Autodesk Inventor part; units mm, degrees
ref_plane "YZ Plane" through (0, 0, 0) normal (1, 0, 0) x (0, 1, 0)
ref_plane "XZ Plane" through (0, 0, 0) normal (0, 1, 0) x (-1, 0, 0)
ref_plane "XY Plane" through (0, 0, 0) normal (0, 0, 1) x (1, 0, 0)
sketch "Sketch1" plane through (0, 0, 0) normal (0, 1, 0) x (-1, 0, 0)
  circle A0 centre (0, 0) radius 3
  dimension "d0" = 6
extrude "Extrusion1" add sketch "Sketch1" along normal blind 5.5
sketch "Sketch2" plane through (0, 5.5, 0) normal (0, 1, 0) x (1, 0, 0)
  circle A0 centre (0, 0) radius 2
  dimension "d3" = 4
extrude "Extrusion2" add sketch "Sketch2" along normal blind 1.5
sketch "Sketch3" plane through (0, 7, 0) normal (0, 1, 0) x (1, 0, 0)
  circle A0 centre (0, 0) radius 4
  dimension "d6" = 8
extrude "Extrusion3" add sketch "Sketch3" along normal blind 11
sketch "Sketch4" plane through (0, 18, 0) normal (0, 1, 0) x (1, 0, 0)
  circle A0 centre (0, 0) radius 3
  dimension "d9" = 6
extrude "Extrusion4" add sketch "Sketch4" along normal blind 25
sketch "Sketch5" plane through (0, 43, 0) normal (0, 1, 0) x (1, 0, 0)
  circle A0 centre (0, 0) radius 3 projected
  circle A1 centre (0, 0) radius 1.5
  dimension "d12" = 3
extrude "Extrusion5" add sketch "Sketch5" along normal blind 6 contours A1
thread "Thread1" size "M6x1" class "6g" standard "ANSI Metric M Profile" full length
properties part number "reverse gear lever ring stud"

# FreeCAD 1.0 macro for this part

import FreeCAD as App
import Part
import Sketcher
from FreeCAD import Vector

doc = App.newDocument("Part")
body = doc.addObject("PartDesign::Body", "Body")

# Sketch on XZ plane
sketch1 = body.newObject("Sketcher::SketchObject", "Sketch")
sketch1.AttachmentSupport = (doc.getObject("XZ_Plane"), [""])
sketch1.MapMode = "FlatFace"
sketch1.addGeometry(Part.Circle(Vector(0, 0, 0), Vector(0, 0, 1), 3), False)
sketch1.addConstraint([
    Sketcher.Constraint("Coincident", 0, 3, -1, 1),
    Sketcher.Constraint("Diameter", 0, 6.0),
])
pad1 = body.newObject("PartDesign::Pad", "Pad")
pad1.Profile = sketch1
pad1.Length = 5.5
pad1.Reversed = True

# Sketch on XZ plane
sketch2 = body.newObject("Sketcher::SketchObject", "Sketch001")
sketch2.AttachmentSupport = (doc.getObject("XZ_Plane"), [""])
sketch2.MapMode = "FlatFace"
sketch2.AttachmentOffset = App.Placement(Vector(0, 0, -5.5), App.Rotation())
sketch2.addGeometry(Part.Circle(Vector(0, 0, 0), Vector(0, 0, 1), 2), False)
sketch2.addConstraint([
    Sketcher.Constraint("Coincident", 0, 3, -1, 1),
    Sketcher.Constraint("Diameter", 0, 4.0),
])
pad2 = body.newObject("PartDesign::Pad", "Pad001")
pad2.Profile = sketch2
pad2.Length = 1.5
pad2.Reversed = True

# Sketch on XZ plane
sketch3 = body.newObject("Sketcher::SketchObject", "Sketch002")
sketch3.AttachmentSupport = (doc.getObject("XZ_Plane"), [""])
sketch3.MapMode = "FlatFace"
sketch3.AttachmentOffset = App.Placement(Vector(0, 0, -7), App.Rotation())
sketch3.addGeometry(Part.Circle(Vector(0, 0, 0), Vector(0, 0, 1), 4), False)
sketch3.addConstraint([
    Sketcher.Constraint("Coincident", 0, 3, -1, 1),
    Sketcher.Constraint("Diameter", 0, 8.0),
])
pad3 = body.newObject("PartDesign::Pad", "Pad002")
pad3.Profile = sketch3
pad3.Length = 11
pad3.Reversed = True

# Sketch on XZ plane
sketch4 = body.newObject("Sketcher::SketchObject", "Sketch003")
sketch4.AttachmentSupport = (doc.getObject("XZ_Plane"), [""])
sketch4.MapMode = "FlatFace"
sketch4.AttachmentOffset = App.Placement(Vector(0, 0, -18), App.Rotation())
sketch4.addGeometry(Part.Circle(Vector(0, 0, 0), Vector(0, 0, 1), 3), False)
sketch4.addConstraint([
    Sketcher.Constraint("Coincident", 0, 3, -1, 1),
    Sketcher.Constraint("Diameter", 0, 6.0),
])
pad4 = body.newObject("PartDesign::Pad", "Pad003")
pad4.Profile = sketch4
pad4.Length = 25
pad4.Reversed = True

# Sketch on XZ plane
sketch5 = body.newObject("Sketcher::SketchObject", "Sketch004")
sketch5.AttachmentSupport = (doc.getObject("XZ_Plane"), [""])
sketch5.MapMode = "FlatFace"
sketch5.AttachmentOffset = App.Placement(Vector(0, 0, -43), App.Rotation())
sketch5.addGeometry(Part.Circle(Vector(0, 0, 0), Vector(0, 0, 1), 1.5), False)
sketch5.addConstraint([
    Sketcher.Constraint("Coincident", 0, 3, -1, 1),
    Sketcher.Constraint("Diameter", 0, 3.0),
])
pad5 = body.newObject("PartDesign::Pad", "Pad004")
pad5.Profile = sketch5
pad5.Length = 6
pad5.Reversed = True

doc.recompute()
